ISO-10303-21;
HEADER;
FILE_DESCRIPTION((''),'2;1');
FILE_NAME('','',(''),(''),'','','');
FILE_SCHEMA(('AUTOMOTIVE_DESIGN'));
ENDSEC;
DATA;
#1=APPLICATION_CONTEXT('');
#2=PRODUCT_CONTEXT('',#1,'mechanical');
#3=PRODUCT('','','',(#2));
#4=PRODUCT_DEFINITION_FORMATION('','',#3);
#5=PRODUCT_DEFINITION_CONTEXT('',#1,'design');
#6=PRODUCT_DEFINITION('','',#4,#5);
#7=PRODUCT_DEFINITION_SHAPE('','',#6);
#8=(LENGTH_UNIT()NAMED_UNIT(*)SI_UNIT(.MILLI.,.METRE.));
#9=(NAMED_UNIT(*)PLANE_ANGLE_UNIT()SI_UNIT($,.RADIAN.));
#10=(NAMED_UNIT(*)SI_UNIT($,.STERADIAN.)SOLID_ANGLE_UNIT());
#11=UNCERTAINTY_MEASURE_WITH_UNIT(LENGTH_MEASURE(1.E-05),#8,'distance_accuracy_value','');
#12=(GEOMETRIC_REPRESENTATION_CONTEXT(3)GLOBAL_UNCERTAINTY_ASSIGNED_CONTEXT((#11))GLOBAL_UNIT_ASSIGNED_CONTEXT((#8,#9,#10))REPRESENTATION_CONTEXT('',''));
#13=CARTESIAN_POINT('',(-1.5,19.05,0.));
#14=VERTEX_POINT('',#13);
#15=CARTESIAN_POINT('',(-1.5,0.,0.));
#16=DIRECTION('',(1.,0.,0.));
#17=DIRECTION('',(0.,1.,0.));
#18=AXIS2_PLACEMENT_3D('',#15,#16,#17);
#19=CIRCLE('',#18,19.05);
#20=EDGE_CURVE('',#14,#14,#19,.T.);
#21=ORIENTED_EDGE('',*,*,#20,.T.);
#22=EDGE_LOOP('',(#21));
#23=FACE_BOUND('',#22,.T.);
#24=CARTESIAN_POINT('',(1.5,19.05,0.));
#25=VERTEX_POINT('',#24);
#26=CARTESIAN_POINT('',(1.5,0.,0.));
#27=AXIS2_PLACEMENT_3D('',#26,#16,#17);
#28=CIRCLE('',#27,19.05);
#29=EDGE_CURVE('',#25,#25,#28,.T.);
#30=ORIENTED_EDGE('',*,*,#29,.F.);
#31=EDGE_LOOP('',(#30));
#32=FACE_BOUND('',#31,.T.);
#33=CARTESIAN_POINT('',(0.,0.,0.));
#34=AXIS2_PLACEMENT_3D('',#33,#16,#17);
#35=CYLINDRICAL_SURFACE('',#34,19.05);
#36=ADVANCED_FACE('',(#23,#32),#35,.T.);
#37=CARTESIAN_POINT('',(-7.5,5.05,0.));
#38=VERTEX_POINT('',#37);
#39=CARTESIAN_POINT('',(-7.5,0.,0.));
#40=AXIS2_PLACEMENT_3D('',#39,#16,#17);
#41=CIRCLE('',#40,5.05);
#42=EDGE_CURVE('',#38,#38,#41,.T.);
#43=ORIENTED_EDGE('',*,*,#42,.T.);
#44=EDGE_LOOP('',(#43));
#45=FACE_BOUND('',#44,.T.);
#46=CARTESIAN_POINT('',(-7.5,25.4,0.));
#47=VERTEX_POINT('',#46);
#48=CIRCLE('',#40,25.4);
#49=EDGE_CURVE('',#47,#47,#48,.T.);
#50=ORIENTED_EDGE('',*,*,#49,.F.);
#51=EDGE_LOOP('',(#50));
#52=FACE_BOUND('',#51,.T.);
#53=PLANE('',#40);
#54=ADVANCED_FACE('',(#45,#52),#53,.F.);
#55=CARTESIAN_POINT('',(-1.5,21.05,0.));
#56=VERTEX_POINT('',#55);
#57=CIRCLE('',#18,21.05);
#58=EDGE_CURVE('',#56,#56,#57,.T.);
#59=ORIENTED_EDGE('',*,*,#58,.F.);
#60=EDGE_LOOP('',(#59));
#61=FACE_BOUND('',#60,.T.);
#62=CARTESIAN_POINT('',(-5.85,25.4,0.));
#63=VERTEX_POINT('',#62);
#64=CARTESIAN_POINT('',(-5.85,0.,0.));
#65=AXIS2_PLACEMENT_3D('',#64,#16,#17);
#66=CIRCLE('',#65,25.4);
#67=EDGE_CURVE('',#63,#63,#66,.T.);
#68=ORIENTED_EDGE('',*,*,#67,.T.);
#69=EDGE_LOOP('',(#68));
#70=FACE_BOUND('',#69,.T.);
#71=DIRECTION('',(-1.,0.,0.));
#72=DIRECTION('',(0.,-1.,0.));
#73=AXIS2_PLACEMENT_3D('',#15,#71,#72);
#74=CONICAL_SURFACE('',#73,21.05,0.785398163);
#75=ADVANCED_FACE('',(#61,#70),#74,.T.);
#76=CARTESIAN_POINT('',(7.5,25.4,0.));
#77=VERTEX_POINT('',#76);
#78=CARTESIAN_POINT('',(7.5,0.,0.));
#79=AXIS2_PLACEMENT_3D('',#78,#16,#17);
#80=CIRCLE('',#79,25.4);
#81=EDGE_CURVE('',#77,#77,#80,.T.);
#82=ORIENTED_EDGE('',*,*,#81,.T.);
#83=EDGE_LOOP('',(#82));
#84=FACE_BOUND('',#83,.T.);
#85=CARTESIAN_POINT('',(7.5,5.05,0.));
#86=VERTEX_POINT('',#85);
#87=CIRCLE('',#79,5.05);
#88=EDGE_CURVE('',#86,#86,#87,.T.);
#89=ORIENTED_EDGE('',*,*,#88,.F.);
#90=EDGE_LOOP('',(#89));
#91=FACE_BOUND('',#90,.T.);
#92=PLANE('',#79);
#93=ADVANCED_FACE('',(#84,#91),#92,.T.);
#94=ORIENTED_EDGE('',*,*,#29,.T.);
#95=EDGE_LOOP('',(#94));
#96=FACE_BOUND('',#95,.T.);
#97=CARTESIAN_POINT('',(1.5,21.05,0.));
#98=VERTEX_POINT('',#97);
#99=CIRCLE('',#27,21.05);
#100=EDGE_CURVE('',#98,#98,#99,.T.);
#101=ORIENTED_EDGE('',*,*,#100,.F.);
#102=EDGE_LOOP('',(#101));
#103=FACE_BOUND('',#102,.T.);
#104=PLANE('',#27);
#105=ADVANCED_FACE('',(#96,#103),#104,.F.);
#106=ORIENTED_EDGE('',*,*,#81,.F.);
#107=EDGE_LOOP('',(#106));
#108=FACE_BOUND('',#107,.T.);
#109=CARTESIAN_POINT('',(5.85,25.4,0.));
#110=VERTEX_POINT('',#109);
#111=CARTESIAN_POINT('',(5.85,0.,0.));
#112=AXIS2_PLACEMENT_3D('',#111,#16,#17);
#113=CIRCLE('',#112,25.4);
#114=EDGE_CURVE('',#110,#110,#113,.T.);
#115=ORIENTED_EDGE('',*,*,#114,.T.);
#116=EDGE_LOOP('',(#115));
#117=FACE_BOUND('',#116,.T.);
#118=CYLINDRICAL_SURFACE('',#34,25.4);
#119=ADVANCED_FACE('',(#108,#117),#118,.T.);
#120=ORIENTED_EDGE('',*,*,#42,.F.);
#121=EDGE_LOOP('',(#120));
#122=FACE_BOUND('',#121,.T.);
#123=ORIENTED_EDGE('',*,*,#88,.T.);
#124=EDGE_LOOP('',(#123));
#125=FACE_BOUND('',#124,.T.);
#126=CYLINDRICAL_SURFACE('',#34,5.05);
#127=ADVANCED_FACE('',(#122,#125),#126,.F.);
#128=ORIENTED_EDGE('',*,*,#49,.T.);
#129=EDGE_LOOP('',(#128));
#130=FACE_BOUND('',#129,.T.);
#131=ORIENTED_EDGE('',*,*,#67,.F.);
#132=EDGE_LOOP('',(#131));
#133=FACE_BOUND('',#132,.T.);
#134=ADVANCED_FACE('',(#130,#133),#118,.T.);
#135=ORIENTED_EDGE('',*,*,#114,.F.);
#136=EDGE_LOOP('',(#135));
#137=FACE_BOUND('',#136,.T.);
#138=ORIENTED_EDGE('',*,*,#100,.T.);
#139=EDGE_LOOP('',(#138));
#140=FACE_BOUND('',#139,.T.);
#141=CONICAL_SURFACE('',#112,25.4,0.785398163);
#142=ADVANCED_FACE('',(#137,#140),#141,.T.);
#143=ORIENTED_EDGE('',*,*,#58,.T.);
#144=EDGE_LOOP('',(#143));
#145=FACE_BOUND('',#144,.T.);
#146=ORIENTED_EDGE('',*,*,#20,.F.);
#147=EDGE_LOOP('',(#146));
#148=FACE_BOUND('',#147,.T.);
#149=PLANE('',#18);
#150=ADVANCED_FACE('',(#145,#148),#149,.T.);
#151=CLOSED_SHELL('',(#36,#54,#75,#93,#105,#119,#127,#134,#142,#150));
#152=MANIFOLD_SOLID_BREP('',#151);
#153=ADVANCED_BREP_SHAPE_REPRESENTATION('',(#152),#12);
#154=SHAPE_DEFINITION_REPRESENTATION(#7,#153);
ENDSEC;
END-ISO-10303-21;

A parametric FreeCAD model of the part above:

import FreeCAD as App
import Part
import Sketcher
from FreeCAD import Vector

doc = App.newDocument("Part")
params = doc.addObject("Spreadsheet::Sheet", "Params")
for row, (alias, value) in enumerate([
    ("sketch1_width", "15 mm"),
    ("sketch1_width2", "3 mm"),
    ("sketch1_height", "2 mm"),
    ("sketch1_width3", "1.65 mm"),
    ("revolution_angle", "360 deg"),
], start=1):
    params.set(f"A{row}", alias)
    params.set(f"B{row}", "=" + value)
    params.setAlias(f"B{row}", alias)

body = doc.addObject("PartDesign::Body", "Body")

# Sketch on XY plane
sketch1 = body.newObject("Sketcher::SketchObject", "Sketch")
sketch1.AttachmentSupport = (doc.getObject("XY_Plane"), [""])
sketch1.MapMode = "FlatFace"
sketch1.addGeometry([
    Part.LineSegment(Vector(1.5, -21.05, 0), Vector(5.85, -25.4, 0)),  # 0
    Part.LineSegment(Vector(5.85, -25.4, 0), Vector(7.5, -25.4, 0)),  # 1
    Part.LineSegment(Vector(7.5, -25.4, 0), Vector(7.5, -5.05, 0)),  # 2
    Part.LineSegment(Vector(7.5, -5.05, 0), Vector(-7.5, -5.05, 0)),  # 3
    Part.LineSegment(Vector(-7.5, -5.05, 0), Vector(-7.5, -25.4, 0)),  # 4
    Part.LineSegment(Vector(-7.5, -25.4, 0), Vector(-5.85, -25.4, 0)),  # 5
    Part.LineSegment(Vector(-5.85, -25.4, 0), Vector(-1.5, -21.05, 0)),  # 6
    Part.LineSegment(Vector(-1.5, -21.05, 0), Vector(-1.5, -19.05, 0)),  # 7
    Part.LineSegment(Vector(-1.5, -19.05, 0), Vector(1.5, -19.05, 0)),  # 8
    Part.LineSegment(Vector(1.5, -19.05, 0), Vector(1.5, -21.05, 0)),  # 9
], False)
sketch1.addConstraint([
    Sketcher.Constraint("Coincident", 0, 2, 1, 1),
    Sketcher.Constraint("Coincident", 1, 2, 2, 1),
    Sketcher.Constraint("Coincident", 2, 2, 3, 1),
    Sketcher.Constraint("Coincident", 3, 2, 4, 1),
    Sketcher.Constraint("Coincident", 4, 2, 5, 1),
    Sketcher.Constraint("Coincident", 5, 2, 6, 1),
    Sketcher.Constraint("Coincident", 6, 2, 7, 1),
    Sketcher.Constraint("Coincident", 7, 2, 8, 1),
    Sketcher.Constraint("Coincident", 8, 2, 9, 1),
    Sketcher.Constraint("Coincident", 9, 2, 0, 1),
    Sketcher.Constraint("Horizontal", 1),
    Sketcher.Constraint("Vertical", 2),
    Sketcher.Constraint("Horizontal", 3),
    Sketcher.Constraint("Vertical", 4),
    Sketcher.Constraint("Horizontal", 5),
    Sketcher.Constraint("Vertical", 7),
    Sketcher.Constraint("Horizontal", 8),
    Sketcher.Constraint("Vertical", 9),
    Sketcher.Constraint("Symmetric", 1, 2, 4, 2, -2),
    Sketcher.Constraint("Symmetric", 6, 2, 9, 2, -2),
    Sketcher.Constraint("Perpendicular", 0, 6),
    Sketcher.Constraint("Equal", 1, 5),
    Sketcher.Constraint("DistanceX", 3, 2, 3, 1, 15.0),
    Sketcher.Constraint("DistanceX", 8, 1, 8, 2, 3.0),
    Sketcher.Constraint("DistanceY", 7, 1, 7, 2, 2.0),
    Sketcher.Constraint("DistanceY", 6, 2, 3, 2, 16.0),
    Sketcher.Constraint("DistanceX", 1, 1, 1, 2, 1.65),
    Sketcher.Constraint("DistanceY", 0, 2, -1, 1, 25.4),
])
sketch1.setExpression("Constraints[22]", "Params.sketch1_width")
sketch1.setExpression("Constraints[23]", "Params.sketch1_width2")
sketch1.setExpression("Constraints[24]", "Params.sketch1_height")
sketch1.setExpression("Constraints[26]", "Params.sketch1_width3")
revolution = body.newObject("PartDesign::Revolution", "Revolution")
revolution.Profile = sketch1
revolution.ReferenceAxis = (sketch1, ["H_Axis"])
revolution.setExpression("Angle", "Params.revolution_angle")

doc.recompute()
